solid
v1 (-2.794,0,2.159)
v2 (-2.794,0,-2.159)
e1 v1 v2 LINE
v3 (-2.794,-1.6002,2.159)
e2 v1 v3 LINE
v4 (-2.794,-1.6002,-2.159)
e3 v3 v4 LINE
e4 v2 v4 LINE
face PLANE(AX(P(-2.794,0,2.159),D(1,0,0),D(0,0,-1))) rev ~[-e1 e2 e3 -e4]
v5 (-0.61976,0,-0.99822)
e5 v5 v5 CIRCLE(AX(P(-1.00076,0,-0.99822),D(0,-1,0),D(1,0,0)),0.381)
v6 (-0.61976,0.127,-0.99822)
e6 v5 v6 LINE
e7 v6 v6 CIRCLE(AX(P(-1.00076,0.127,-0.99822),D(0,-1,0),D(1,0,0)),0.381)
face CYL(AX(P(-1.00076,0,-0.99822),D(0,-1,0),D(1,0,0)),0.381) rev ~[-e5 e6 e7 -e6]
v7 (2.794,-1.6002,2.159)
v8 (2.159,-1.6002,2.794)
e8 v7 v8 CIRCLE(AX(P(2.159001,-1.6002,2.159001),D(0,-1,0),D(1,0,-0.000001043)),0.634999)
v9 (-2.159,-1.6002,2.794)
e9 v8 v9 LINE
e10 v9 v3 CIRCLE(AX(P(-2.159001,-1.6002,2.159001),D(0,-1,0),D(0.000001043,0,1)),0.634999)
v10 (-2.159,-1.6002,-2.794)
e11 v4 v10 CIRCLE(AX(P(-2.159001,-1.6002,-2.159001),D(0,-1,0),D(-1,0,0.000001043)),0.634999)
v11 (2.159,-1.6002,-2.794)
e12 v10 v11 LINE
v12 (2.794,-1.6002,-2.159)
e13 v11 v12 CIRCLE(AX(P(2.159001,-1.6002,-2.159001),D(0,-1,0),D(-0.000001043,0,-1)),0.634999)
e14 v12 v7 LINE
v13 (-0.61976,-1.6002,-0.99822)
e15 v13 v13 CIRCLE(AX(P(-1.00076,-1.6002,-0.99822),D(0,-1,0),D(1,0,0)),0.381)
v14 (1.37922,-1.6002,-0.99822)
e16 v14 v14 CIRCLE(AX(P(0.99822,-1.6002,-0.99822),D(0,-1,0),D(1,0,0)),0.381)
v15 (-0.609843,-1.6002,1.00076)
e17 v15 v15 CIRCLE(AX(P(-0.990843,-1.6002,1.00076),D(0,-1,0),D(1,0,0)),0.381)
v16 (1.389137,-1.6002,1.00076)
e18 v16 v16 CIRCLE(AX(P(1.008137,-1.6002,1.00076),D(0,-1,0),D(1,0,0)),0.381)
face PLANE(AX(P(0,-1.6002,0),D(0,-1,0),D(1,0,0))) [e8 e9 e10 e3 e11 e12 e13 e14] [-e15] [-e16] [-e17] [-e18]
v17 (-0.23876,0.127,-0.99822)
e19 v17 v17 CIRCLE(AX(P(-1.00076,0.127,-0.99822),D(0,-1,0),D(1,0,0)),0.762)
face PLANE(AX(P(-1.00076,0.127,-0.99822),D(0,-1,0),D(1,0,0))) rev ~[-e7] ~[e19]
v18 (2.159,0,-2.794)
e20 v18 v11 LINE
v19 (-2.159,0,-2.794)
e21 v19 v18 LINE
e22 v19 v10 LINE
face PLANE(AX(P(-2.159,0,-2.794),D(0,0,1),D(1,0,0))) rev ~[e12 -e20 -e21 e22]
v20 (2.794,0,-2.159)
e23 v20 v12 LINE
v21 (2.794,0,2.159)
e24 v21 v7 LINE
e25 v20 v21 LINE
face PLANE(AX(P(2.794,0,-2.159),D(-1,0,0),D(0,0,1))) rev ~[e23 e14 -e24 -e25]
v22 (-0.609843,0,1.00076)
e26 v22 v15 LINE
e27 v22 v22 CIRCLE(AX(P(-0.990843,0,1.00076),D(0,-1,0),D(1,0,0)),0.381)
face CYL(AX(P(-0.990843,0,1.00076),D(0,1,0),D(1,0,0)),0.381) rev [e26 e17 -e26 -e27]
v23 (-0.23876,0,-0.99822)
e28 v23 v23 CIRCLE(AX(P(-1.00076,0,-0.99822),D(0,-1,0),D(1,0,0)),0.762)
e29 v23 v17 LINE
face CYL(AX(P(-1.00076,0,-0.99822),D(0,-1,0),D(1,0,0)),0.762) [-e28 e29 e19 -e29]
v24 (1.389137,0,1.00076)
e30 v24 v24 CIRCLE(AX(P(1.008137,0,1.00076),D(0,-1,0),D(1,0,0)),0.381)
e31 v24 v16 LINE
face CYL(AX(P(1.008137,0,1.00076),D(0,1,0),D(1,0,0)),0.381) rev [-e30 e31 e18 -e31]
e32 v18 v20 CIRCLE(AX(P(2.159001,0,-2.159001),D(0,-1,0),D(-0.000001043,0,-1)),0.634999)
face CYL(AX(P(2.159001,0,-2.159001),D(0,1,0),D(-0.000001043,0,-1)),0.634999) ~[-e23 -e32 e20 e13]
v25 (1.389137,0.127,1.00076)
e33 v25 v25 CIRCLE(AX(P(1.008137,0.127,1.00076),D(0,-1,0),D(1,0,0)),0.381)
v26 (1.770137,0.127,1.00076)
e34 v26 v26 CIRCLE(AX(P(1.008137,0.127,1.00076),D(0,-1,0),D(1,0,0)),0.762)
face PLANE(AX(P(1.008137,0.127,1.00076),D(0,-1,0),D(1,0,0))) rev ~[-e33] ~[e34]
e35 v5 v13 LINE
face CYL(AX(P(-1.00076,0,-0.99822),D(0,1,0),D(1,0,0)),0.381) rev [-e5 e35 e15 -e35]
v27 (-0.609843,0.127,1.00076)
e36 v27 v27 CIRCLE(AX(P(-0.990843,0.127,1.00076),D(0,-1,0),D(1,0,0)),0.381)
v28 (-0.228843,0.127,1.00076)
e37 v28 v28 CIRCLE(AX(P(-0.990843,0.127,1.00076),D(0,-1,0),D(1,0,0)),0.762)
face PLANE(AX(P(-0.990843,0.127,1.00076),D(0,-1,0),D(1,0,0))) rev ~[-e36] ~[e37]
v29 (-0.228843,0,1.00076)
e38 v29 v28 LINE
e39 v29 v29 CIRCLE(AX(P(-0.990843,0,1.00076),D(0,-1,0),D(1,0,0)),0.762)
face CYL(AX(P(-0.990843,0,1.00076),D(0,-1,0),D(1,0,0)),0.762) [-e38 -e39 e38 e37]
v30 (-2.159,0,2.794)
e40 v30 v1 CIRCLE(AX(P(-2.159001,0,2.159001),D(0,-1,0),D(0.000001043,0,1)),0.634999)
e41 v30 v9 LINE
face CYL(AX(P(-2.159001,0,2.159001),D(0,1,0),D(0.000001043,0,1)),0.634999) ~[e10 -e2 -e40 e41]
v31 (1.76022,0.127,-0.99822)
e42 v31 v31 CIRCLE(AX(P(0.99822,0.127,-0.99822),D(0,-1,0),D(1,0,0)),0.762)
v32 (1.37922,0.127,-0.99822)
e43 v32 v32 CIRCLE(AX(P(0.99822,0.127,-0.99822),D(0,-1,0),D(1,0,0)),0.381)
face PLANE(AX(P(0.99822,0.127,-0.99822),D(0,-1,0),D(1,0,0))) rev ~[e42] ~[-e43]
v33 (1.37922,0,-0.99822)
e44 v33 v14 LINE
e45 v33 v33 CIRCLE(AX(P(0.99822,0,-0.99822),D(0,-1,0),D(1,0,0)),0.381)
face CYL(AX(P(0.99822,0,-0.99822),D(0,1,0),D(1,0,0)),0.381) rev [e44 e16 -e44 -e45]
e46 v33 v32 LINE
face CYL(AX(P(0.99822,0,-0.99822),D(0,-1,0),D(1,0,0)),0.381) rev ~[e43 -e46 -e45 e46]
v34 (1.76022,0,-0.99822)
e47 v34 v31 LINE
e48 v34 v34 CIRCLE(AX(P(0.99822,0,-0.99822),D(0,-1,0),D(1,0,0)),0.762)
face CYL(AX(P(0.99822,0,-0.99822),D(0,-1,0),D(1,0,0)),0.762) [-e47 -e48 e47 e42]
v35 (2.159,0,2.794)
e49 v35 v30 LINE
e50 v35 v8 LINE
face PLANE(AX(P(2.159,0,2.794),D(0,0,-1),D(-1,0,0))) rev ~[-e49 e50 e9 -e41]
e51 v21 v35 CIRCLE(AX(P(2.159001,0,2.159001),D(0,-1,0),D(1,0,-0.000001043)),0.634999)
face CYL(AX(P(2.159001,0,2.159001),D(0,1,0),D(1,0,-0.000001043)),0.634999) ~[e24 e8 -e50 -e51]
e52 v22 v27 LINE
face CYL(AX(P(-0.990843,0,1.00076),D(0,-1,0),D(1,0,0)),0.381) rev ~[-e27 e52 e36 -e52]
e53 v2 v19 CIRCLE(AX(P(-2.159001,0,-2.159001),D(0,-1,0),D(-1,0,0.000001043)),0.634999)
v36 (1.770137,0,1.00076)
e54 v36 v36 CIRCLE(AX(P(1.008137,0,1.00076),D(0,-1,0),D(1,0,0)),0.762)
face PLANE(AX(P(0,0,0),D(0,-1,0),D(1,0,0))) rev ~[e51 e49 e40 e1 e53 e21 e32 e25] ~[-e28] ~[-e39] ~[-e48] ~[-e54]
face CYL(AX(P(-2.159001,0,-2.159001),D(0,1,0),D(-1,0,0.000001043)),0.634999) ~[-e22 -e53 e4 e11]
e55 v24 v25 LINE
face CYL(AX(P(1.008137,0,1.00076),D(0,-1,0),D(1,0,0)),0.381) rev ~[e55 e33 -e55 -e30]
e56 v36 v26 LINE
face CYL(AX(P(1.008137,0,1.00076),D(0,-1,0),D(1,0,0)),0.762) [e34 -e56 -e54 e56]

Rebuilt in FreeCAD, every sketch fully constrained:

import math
import FreeCAD as App
import Part
import Sketcher
from FreeCAD import Vector
Q = App.Units.Quantity

doc = App.newDocument("Part")
body = doc.addObject("PartDesign::Body", "Body")

# Sketch on XZ plane
sketch1 = body.newObject("Sketcher::SketchObject", "Sketch")
sketch1.AttachmentSupport = (doc.getObject("XZ_Plane"), [""])
sketch1.MapMode = "FlatFace"
sketch1.addGeometry([
    Part.LineSegment(Vector(-2.159, -2.794, 0), Vector(2.159, -2.794, 0)),  # 0
    Part.ArcOfCircle(Part.Circle(Vector(2.159001, -2.159001, 0), Vector(0, 0, 1), 0.634999), math.radians(-90.00006), math.radians(0.00006)),  # 1
    Part.LineSegment(Vector(2.794, -2.159, 0), Vector(2.794, 2.159, 0)),  # 2
    Part.ArcOfCircle(Part.Circle(Vector(2.159001, 2.159001, 0), Vector(0, 0, 1), 0.634999), math.radians(-0.00006), math.radians(90.00006)),  # 3
    Part.LineSegment(Vector(2.159, 2.794, 0), Vector(-2.159, 2.794, 0)),  # 4
    Part.ArcOfCircle(Part.Circle(Vector(-2.159001, 2.159001, 0), Vector(0, 0, 1), 0.634999), math.radians(89.99994), math.radians(180.00006)),  # 5
    Part.LineSegment(Vector(-2.794, 2.159, 0), Vector(-2.794, -2.159, 0)),  # 6
    Part.ArcOfCircle(Part.Circle(Vector(-2.159001, -2.159001, 0), Vector(0, 0, 1), 0.634999), math.radians(179.99994), math.radians(270.00006)),  # 7
    Part.Circle(Vector(-1.00076, -0.99822, 0), Vector(0, 0, 1), 0.381),  # 8
    Part.Circle(Vector(0.99822, -0.99822, 0), Vector(0, 0, 1), 0.381),  # 9
    Part.Circle(Vector(-0.990843, 1.00076, 0), Vector(0, 0, 1), 0.381),  # 10
    Part.Circle(Vector(1.008137, 1.00076, 0), Vector(0, 0, 1), 0.381),  # 11
], False)
sketch1.addConstraint([
    Sketcher.Constraint("Tangent", 0, 2, 1, 1),
    Sketcher.Constraint("Tangent", 1, 2, 2, 1),
    Sketcher.Constraint("Tangent", 2, 2, 3, 1),
    Sketcher.Constraint("Tangent", 3, 2, 4, 1),
    Sketcher.Constraint("Tangent", 4, 2, 5, 1),
    Sketcher.Constraint("Tangent", 5, 2, 6, 1),
    Sketcher.Constraint("Tangent", 6, 2, 7, 1),
    Sketcher.Constraint("Tangent", 7, 2, 0, 1),
    Sketcher.Constraint("Horizontal", 0),
    Sketcher.Constraint("Vertical", 2),
    Sketcher.Constraint("Horizontal", 4),
    Sketcher.Constraint("Vertical", 6),
    Sketcher.Constraint("Equal", 1, 3),
    Sketcher.Constraint("Equal", 3, 5),
    Sketcher.Constraint("Equal", 5, 7),
    Sketcher.Constraint("Equal", 8, 9),
    Sketcher.Constraint("Equal", 9, 10),
    Sketcher.Constraint("Equal", 10, 11),
    Sketcher.Constraint("Symmetric", 1, 3, 5, 3, -1, 1),
    Sketcher.Constraint("Horizontal", 8, 3, 9, 3),
    Sketcher.Constraint("Horizontal", 10, 3, 11, 3),
    Sketcher.Constraint("Equal", 4, 2),
    Sketcher.Constraint("Diameter", 8, Q("0.03 in")),
    Sketcher.Constraint("Radius", 1, Q("0.025 in")),
    Sketcher.Constraint("DistanceX", 0, 1, 0, 2, Q("0.17 in")),
    Sketcher.Constraint("DistanceX", 8, 3, -1, 1, Q("0.0394 in")),
    Sketcher.Constraint("DistanceY", 8, 3, -1, 1, Q("0.0393 in")),
    Sketcher.Constraint("DistanceX", -1, 1, 9, 3, Q("0.0393 in")),
    Sketcher.Constraint("DistanceY", -1, 1, 10, 3, Q("0.0394 in")),
    Sketcher.Constraint("DistanceX", 10, 3, 11, 3, Q("0.0787 in")),
    Sketcher.Constraint("DistanceX", 10, 3, -1, 1, Q("0.990843 mm")),
])
pad1 = body.newObject("PartDesign::Pad", "Pad")
pad1.Profile = sketch1
pad1.Length = Q("0.063 in")

# Sketch on XZ plane
sketch2 = body.newObject("Sketcher::SketchObject", "Sketch001")
sketch2.AttachmentSupport = (doc.getObject("XZ_Plane"), [""])
sketch2.MapMode = "FlatFace"
sketch2.addGeometry([
    Part.Circle(Vector(1.008137, 1.00076, 0), Vector(0, 0, 1), 0.762),  # 0
    Part.Circle(Vector(1.008137, 1.00076, 0), Vector(0, 0, 1), 0.381),  # 1
    Part.Circle(Vector(0.99822, -0.99822, 0), Vector(0, 0, 1), 0.762),  # 2
    Part.Circle(Vector(0.99822, -0.99822, 0), Vector(0, 0, 1), 0.381),  # 3
    Part.Circle(Vector(-1.00076, -0.99822, 0), Vector(0, 0, 1), 0.762),  # 4
    Part.Circle(Vector(-1.00076, -0.99822, 0), Vector(0, 0, 1), 0.381),  # 5
    Part.Circle(Vector(-0.990843, 1.00076, 0), Vector(0, 0, 1), 0.762),  # 6
    Part.Circle(Vector(-0.990843, 1.00076, 0), Vector(0, 0, 1), 0.381),  # 7
], False)
sketch2.addConstraint([
    Sketcher.Constraint("Coincident", 1, 3, 0, 3),
    Sketcher.Constraint("Coincident", 3, 3, 2, 3),
    Sketcher.Constraint("Coincident", 5, 3, 4, 3),
    Sketcher.Constraint("Coincident", 7, 3, 6, 3),
    Sketcher.Constraint("Equal", 0, 2),
    Sketcher.Constraint("Equal", 1, 3),
    Sketcher.Constraint("Equal", 2, 4),
    Sketcher.Constraint("Equal", 3, 5),
    Sketcher.Constraint("Equal", 4, 6),
    Sketcher.Constraint("Equal", 5, 7),
    Sketcher.Constraint("Horizontal", 3, 3, 4, 3),
    Sketcher.Constraint("Horizontal", 1, 3, 6, 3),
    Sketcher.Constraint("Diameter", 0, Q("0.06 in")),
    Sketcher.Constraint("Diameter", 1, Q("0.03 in")),
    Sketcher.Constraint("DistanceY", -1, 1, 0, 3, Q("0.0394 in")),
    Sketcher.Constraint("DistanceX", -1, 1, 2, 3, Q("0.0393 in")),
    Sketcher.Constraint("DistanceY", 2, 3, -1, 1, Q("0.0393 in")),
    Sketcher.Constraint("DistanceX", 4, 3, -1, 1, Q("0.0394 in")),
    Sketcher.Constraint("DistanceX", 6, 3, 0, 3, Q("0.0787 in")),
    Sketcher.Constraint("DistanceX", -1, 1, 0, 3, Q("1.008137 mm")),
])
pad2 = body.newObject("PartDesign::Pad", "Pad001")
pad2.Profile = sketch2
pad2.Length = Q("0.005 in")
pad2.Reversed = True

doc.recompute()
